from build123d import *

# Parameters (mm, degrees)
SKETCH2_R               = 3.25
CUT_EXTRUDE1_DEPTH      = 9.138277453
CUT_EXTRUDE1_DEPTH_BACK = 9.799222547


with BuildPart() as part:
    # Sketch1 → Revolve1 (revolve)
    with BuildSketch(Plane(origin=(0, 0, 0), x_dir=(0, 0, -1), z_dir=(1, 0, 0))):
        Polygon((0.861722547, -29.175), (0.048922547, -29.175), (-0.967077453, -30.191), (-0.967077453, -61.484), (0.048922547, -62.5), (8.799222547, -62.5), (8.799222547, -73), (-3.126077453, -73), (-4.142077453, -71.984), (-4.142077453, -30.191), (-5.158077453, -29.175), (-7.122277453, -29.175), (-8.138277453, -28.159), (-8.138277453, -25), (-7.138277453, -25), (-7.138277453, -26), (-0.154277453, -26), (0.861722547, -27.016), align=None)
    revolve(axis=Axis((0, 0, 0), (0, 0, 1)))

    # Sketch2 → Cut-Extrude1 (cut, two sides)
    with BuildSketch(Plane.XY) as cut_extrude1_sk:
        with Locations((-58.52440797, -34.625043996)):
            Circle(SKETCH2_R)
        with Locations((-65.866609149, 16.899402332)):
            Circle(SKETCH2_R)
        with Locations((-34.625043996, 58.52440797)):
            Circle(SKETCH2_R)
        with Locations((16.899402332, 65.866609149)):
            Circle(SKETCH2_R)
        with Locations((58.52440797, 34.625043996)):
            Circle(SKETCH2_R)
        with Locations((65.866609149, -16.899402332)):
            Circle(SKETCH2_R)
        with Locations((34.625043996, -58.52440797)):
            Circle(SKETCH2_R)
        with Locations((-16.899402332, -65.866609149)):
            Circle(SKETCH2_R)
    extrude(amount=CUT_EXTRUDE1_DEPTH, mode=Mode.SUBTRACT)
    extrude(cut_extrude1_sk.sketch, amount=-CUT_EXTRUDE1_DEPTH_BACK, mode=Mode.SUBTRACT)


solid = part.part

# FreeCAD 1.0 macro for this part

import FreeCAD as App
import Part
import Sketcher

V = App.Vector
Q = App.Units.Quantity


def add_polygon(sketch, points):
    """Adds a closed chain of lines whose ends are joined by coincident constraints."""
    first, n = sketch.GeometryCount, len(points)
    for a, b in zip(points, points[1:] + points[:1]):
        sketch.addGeometry(Part.LineSegment(App.Vector(*a, 0), App.Vector(*b, 0)), False)
    for i in range(n):
        sketch.addConstraint(Sketcher.Constraint("Coincident", first + i, 2, first + (i + 1) % n, 1))

doc = App.newDocument("Part")
body = doc.addObject("PartDesign::Body", "Body")

sketch1 = body.newObject("Sketcher::SketchObject", "Sketch")
sketch1.AttachmentSupport = (doc.getObject("YZ_Plane"), [""])
sketch1.MapMode = "FlatFace"
add_polygon(sketch1, [(-29.2, 0), (-29.2, -0.9), (-27, -0.9), (-26, 0.2), (-26, 7.1), (-25, 7.1), (-25, 8.1), (-28.2, 8.1), (-29.2, 7.1), (-29.2, 5.2), (-30.2, 4.1), (-72, 4.1), (-73, 3.1), (-73, -8.8), (-62.5, -8.8), (-62.5, 0), (-61.5, 1), (-30.2, 1)])
sketch1.addConstraint(Sketcher.Constraint("Vertical", 0))
sketch1.addConstraint(Sketcher.Constraint("Horizontal", 1))
sketch1.addConstraint(Sketcher.Constraint("Vertical", 3))
sketch1.addConstraint(Sketcher.Constraint("Horizontal", 4))
sketch1.addConstraint(Sketcher.Constraint("Vertical", 5))
sketch1.addConstraint(Sketcher.Constraint("Horizontal", 6))
sketch1.addConstraint(Sketcher.Constraint("Vertical", 8))
sketch1.addConstraint(Sketcher.Constraint("Horizontal", 10))
sketch1.addConstraint(Sketcher.Constraint("Vertical", 12))
sketch1.addConstraint(Sketcher.Constraint("Horizontal", 13))
sketch1.addConstraint(Sketcher.Constraint("Vertical", 14))
sketch1.addConstraint(Sketcher.Constraint("Horizontal", 16))
sketch1.addConstraint(Sketcher.Constraint("Parallel", 2, 7))
sketch1.addConstraint(Sketcher.Constraint("Parallel", 7, 9))
sketch1.addConstraint(Sketcher.Constraint("Parallel", 9, 11))
sketch1.addConstraint(Sketcher.Constraint("Parallel", 11, 15))
sketch1.addConstraint(Sketcher.Constraint("Perpendicular", 15, 17))
sketch1.addConstraint(Sketcher.Constraint("Horizontal", 14, 2, 17, 2))
sketch1.addConstraint(Sketcher.Constraint("Vertical", 0, 2, 7, 2))
sketch1.addConstraint(Sketcher.Constraint("Vertical", 9, 2, 16, 2))
sketch1.addConstraint(Sketcher.Constraint("Equal", 4, 5))
sketch1.addConstraint(Sketcher.Constraint("Equal", 2, 7))
sketch1.addConstraint(Sketcher.Constraint("Equal", 7, 9))
sketch1.addConstraint(Sketcher.Constraint("Equal", 9, 11))
sketch1.addConstraint(Sketcher.Constraint("Equal", 11, 15))
sketch1.addConstraint(Sketcher.Constraint("DistanceX", 4, 1, 4, 2, Q("1 mm")))
sketch1.addConstraint(Sketcher.Constraint("DistanceX", 13, 1, 13, 2, Q("10.5 mm")))
sketch1.addConstraint(Sketcher.Constraint("DistanceX", 2, 2, -1, 1, Q("26 mm")))
sketch1.addConstraint(Sketcher.Constraint("DistanceX", 11, 2, -1, 1, Q("73 mm")))
sketch1.addConstraint(Sketcher.Constraint("DistanceY", 1, 2, 3, 2, Q("8 mm")))
sketch1.addConstraint(Sketcher.Constraint("DistanceX", 1, 1, 1, 2, Q("2.159 mm")))
sketch1.addConstraint(Sketcher.Constraint("DistanceX", 10, 2, 10, 1, Q("41.793 mm")))
sketch1.addConstraint(Sketcher.Constraint("DistanceY", 0, 2, 0, 1, Q("0.8128 mm")))
sketch1.addConstraint(Sketcher.Constraint("DistanceY", 8, 2, 8, 1, Q("1.9642 mm")))
sketch1.addConstraint(Sketcher.Constraint("DistanceY", 12, 2, 12, 1, Q("11.9253 mm")))
sketch1.addConstraint(Sketcher.Constraint("DistanceY", 0, 2, -1, 1, Q("0.861723 mm")))
revolution = body.newObject("PartDesign::Revolution", "Revolution")
revolution.Profile = sketch1
revolution.ReferenceAxis = (sketch1, ["V_Axis"])
revolution.Angle = 360

sketch2 = body.newObject("Sketcher::SketchObject", "Sketch001")
sketch2.AttachmentSupport = (doc.getObject("XY_Plane"), [""])
sketch2.MapMode = "FlatFace"
sketch2.addGeometry(Part.Circle(V(-58.5, -34.6, 0), V(0, 0, 1), 3.2), False)
sketch2.addGeometry(Part.Circle(V(-65.9, 16.9, 0), V(0, 0, 1), 3.2), False)
sketch2.addGeometry(Part.Circle(V(-34.6, 58.5, 0), V(0, 0, 1), 3.2), False)
sketch2.addGeometry(Part.Circle(V(16.9, 65.9, 0), V(0, 0, 1), 3.2), False)
sketch2.addGeometry(Part.Circle(V(58.5, 34.6, 0), V(0, 0, 1), 3.2), False)
sketch2.addGeometry(Part.Circle(V(65.9, -16.9, 0), V(0, 0, 1), 3.2), False)
sketch2.addGeometry(Part.Circle(V(34.6, -58.5, 0), V(0, 0, 1), 3.2), False)
sketch2.addGeometry(Part.Circle(V(-16.9, -65.9, 0), V(0, 0, 1), 3.2), False)
sketch2.addConstraint(Sketcher.Constraint("Equal", 0, 1))
sketch2.addConstraint(Sketcher.Constraint("Equal", 1, 2))
sketch2.addConstraint(Sketcher.Constraint("Equal", 2, 3))
sketch2.addConstraint(Sketcher.Constraint("Equal", 3, 4))
sketch2.addConstraint(Sketcher.Constraint("Equal", 4, 5))
sketch2.addConstraint(Sketcher.Constraint("Equal", 5, 6))
sketch2.addConstraint(Sketcher.Constraint("Equal", 6, 7))
sketch2.addConstraint(Sketcher.Constraint("Symmetric", 0, 3, 4, 3, -1, 1))
sketch2.addConstraint(Sketcher.Constraint("Symmetric", 1, 3, 5, 3, -1, 1))
sketch2.addConstraint(Sketcher.Constraint("Symmetric", 2, 3, 6, 3, -1, 1))
sketch2.addConstraint(Sketcher.Constraint("Symmetric", 3, 3, 7, 3, -1, 1))
sketch2.addConstraint(Sketcher.Constraint("Diameter", 0, Q("6.5 mm")))
sketch2.addConstraint(Sketcher.Constraint("DistanceX", 1, 3, 0, 3, Q("7.342201 mm")))
sketch2.addConstraint(Sketcher.Constraint("DistanceY", 2, 3, 3, 3, Q("7.342201 mm")))
sketch2.addConstraint(Sketcher.Constraint("DistanceX", 1, 3, -1, 1, Q("65.866609 mm")))
sketch2.addConstraint(Sketcher.Constraint("DistanceY", -1, 1, 3, 3, Q("65.866609 mm")))
sketch2.addConstraint(Sketcher.Constraint("DistanceY", 0, 3, 2, 3, Q("93.149452 mm")))
sketch2.addConstraint(Sketcher.Constraint("DistanceX", 1, 3, 3, 3, Q("82.766011 mm")))
sketch2.addConstraint(Sketcher.Constraint("DistanceX", 2, 3, 4, 3, Q("93.149452 mm")))
sketch2.addConstraint(Sketcher.Constraint("DistanceY", 1, 3, 4, 3, Q("17.725642 mm")))
pocket1 = body.newObject("PartDesign::Pocket", "Pocket")
pocket1.Profile = sketch2
pocket1.Type = "ThroughAll"
pocket1.Midplane = True

doc.recompute()
